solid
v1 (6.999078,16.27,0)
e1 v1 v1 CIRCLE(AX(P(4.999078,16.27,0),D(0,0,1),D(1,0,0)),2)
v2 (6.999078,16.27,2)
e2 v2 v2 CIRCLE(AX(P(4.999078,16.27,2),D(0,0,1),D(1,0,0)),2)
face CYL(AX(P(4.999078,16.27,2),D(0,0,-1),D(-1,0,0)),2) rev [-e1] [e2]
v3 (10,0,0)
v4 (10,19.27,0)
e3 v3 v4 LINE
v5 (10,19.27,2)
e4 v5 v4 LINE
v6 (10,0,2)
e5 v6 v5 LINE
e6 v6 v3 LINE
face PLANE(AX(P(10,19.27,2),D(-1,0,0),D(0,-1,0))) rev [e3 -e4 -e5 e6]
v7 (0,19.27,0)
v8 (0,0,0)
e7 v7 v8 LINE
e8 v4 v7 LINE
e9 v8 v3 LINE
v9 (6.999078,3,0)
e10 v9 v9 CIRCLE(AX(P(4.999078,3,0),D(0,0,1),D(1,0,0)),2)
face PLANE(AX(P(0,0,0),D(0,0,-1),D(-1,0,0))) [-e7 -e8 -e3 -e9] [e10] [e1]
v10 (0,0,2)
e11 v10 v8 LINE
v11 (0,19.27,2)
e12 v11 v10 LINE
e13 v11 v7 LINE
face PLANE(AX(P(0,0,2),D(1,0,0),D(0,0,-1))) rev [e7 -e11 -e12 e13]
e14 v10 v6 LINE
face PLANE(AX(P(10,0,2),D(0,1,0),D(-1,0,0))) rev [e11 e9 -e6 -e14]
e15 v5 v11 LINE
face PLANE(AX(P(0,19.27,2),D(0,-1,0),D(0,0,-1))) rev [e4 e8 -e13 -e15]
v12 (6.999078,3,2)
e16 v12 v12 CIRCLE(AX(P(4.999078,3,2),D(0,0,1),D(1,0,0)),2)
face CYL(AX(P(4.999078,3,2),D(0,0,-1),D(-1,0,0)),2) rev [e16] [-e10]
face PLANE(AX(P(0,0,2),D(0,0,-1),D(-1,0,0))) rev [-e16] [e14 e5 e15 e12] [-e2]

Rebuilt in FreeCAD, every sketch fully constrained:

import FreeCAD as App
import Part
import Sketcher
from FreeCAD import Vector
Q = App.Units.Quantity


def add_polygon(sketch, points):
    """Adds a closed chain of lines whose ends are joined by coincident constraints."""
    first, n = sketch.GeometryCount, len(points)
    for a, b in zip(points, points[1:] + points[:1]):
        sketch.addGeometry(Part.LineSegment(App.Vector(*a, 0), App.Vector(*b, 0)), False)
    for i in range(n):
        sketch.addConstraint(Sketcher.Constraint("Coincident", first + i, 2, first + (i + 1) % n, 1))

doc = App.newDocument("Part")
params = doc.addObject("Spreadsheet::Sheet", "Params")
for row, (alias, value) in enumerate([
    ("sketch1_diameter", "4 mm"),
    ("sketch1_width", "10 mm"),
    ("sketch1_height", "19.27 mm"),
    ("pad1_length", "2 mm"),
], start=1):
    params.set(f"A{row}", alias)
    params.set(f"B{row}", "=" + value)
    params.setAlias(f"B{row}", alias)

body = doc.addObject("PartDesign::Body", "Body")

# Sketch on XY plane
sketch1 = doc.addObject("Sketcher::SketchObject", "Sketch")
body.addObject(sketch1)
sketch1.AttachmentSupport = (doc.XY_Plane, [""])
sketch1.MapMode = "FlatFace"
add_polygon(sketch1, [(0, 19.3), (0, 0), (10, 0), (10, 19.3)])  # lines 0-3
sketch1.addGeometry(Part.Circle(Vector(5, 3, 0), Vector(0, 0, 1), 2), False)  # 4
sketch1.addGeometry(Part.Circle(Vector(5, 16.3, 0), Vector(0, 0, 1), 2), False)  # 5
sketch1.addConstraint(Sketcher.Constraint("Vertical", 0))
sketch1.addConstraint(Sketcher.Constraint("Horizontal", 1))
sketch1.addConstraint(Sketcher.Constraint("Vertical", 2))
sketch1.addConstraint(Sketcher.Constraint("Horizontal", 3))
sketch1.addConstraint(Sketcher.Constraint("Coincident", 0, 2, -1, 1))
sketch1.addConstraint(Sketcher.Constraint("Equal", 4, 5))
sketch1.addConstraint(Sketcher.Constraint("Vertical", 4, 3, 5, 3))
sketch1.addConstraint(Sketcher.Constraint("Diameter", 4, Q("4 mm")))
sketch1.addConstraint(Sketcher.Constraint("DistanceX", 1, 1, 1, 2, Q("10 mm")))
sketch1.addConstraint(Sketcher.Constraint("DistanceY", -1, 1, 4, 3, Q("3 mm")))
sketch1.addConstraint(Sketcher.Constraint("DistanceY", 5, 3, 2, 2, Q("3 mm")))
sketch1.addConstraint(Sketcher.Constraint("DistanceY", 0, 2, 0, 1, Q("19.27 mm")))
sketch1.addConstraint(Sketcher.Constraint("DistanceX", -1, 1, 4, 3, Q("4.999078 mm")))
sketch1.setExpression("Constraints[11]", "Params.sketch1_diameter")
sketch1.setExpression("Constraints[12]", "Params.sketch1_width")
sketch1.setExpression("Constraints[15]", "Params.sketch1_height")
pad1 = doc.addObject("PartDesign::Pad", "Pad")
body.addObject(pad1)
pad1.Profile = sketch1
pad1.setExpression("Length", "Params.pad1_length")

doc.recompute()
